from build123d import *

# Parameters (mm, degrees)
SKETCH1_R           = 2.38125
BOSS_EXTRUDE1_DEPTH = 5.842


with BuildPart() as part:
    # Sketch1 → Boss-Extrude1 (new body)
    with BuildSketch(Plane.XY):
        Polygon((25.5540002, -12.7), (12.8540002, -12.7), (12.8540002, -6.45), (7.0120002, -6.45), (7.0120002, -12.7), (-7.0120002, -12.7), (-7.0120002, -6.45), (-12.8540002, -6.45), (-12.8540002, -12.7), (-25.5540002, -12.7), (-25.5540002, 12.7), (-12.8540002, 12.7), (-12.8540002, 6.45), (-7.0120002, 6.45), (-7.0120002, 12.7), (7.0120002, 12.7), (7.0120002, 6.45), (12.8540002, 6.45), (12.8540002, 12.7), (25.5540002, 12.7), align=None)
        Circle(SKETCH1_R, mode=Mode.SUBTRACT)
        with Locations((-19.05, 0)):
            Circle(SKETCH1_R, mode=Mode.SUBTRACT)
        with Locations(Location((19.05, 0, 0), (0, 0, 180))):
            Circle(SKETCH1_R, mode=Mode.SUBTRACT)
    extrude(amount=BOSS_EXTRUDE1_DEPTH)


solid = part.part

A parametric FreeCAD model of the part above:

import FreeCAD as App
import Part
import Sketcher

V = App.Vector
Q = App.Units.Quantity

doc = App.newDocument("Part")
body = doc.addObject("PartDesign::Body", "Body")

# Sketch on XY plane
sketch1 = doc.addObject("Sketcher::SketchObject", "Sketch")
body.addObject(sketch1)
sketch1.AttachmentSupport = (doc.XY_Plane, [""])
sketch1.MapMode = "FlatFace"
sketch1.addGeometry(Part.LineSegment(V(12.9, -12.7, 0), V(25.6, -12.7, 0)), False)
sketch1.addGeometry(Part.LineSegment(V(25.6, -12.7, 0), V(25.6, 12.7, 0)), False)
sketch1.addGeometry(Part.LineSegment(V(25.6, 12.7, 0), V(12.9, 12.7, 0)), False)
sketch1.addGeometry(Part.LineSegment(V(12.9, 12.7, 0), V(12.9, 6.5, 0)), False)
sketch1.addGeometry(Part.LineSegment(V(12.9, 6.5, 0), V(7, 6.5, 0)), False)
sketch1.addGeometry(Part.LineSegment(V(7, 6.5, 0), V(7, 12.7, 0)), False)
sketch1.addGeometry(Part.LineSegment(V(7, 12.7, 0), V(-7, 12.7, 0)), False)
sketch1.addGeometry(Part.LineSegment(V(-7, 12.7, 0), V(-7, 6.5, 0)), False)
sketch1.addGeometry(Part.LineSegment(V(-7, 6.5, 0), V(-12.9, 6.5, 0)), False)
sketch1.addGeometry(Part.LineSegment(V(-12.9, 6.5, 0), V(-12.9, 12.7, 0)), False)
sketch1.addGeometry(Part.LineSegment(V(-12.9, 12.7, 0), V(-25.6, 12.7, 0)), False)
sketch1.addGeometry(Part.LineSegment(V(-25.6, 12.7, 0), V(-25.6, -12.7, 0)), False)
sketch1.addGeometry(Part.LineSegment(V(-25.6, -12.7, 0), V(-12.9, -12.7, 0)), False)
sketch1.addGeometry(Part.LineSegment(V(-12.9, -12.7, 0), V(-12.9, -6.5, 0)), False)
sketch1.addGeometry(Part.LineSegment(V(-12.9, -6.5, 0), V(-7, -6.5, 0)), False)
sketch1.addGeometry(Part.LineSegment(V(-7, -6.5, 0), V(-7, -12.7, 0)), False)
sketch1.addGeometry(Part.LineSegment(V(-7, -12.7, 0), V(7, -12.7, 0)), False)
sketch1.addGeometry(Part.LineSegment(V(7, -12.7, 0), V(7, -6.5, 0)), False)
sketch1.addGeometry(Part.LineSegment(V(7, -6.5, 0), V(12.9, -6.5, 0)), False)
sketch1.addGeometry(Part.LineSegment(V(12.9, -6.5, 0), V(12.9, -12.7, 0)), False)
sketch1.addGeometry(Part.Circle(V(19.1, 0, 0), V(0, 0, 1), 2.4), False)
sketch1.addGeometry(Part.Circle(V(0, 0, 0), V(0, 0, 1), 2.4), False)
sketch1.addGeometry(Part.Circle(V(-19.1, 0, 0), V(0, 0, 1), 2.4), False)
sketch1.addConstraint(Sketcher.Constraint("Coincident", 0, 2, 1, 1))
sketch1.addConstraint(Sketcher.Constraint("Coincident", 1, 2, 2, 1))
sketch1.addConstraint(Sketcher.Constraint("Coincident", 2, 2, 3, 1))
sketch1.addConstraint(Sketcher.Constraint("Coincident", 3, 2, 4, 1))
sketch1.addConstraint(Sketcher.Constraint("Coincident", 4, 2, 5, 1))
sketch1.addConstraint(Sketcher.Constraint("Coincident", 5, 2, 6, 1))
sketch1.addConstraint(Sketcher.Constraint("Coincident", 6, 2, 7, 1))
sketch1.addConstraint(Sketcher.Constraint("Coincident", 7, 2, 8, 1))
sketch1.addConstraint(Sketcher.Constraint("Coincident", 8, 2, 9, 1))
sketch1.addConstraint(Sketcher.Constraint("Coincident", 9, 2, 10, 1))
sketch1.addConstraint(Sketcher.Constraint("Coincident", 10, 2, 11, 1))
sketch1.addConstraint(Sketcher.Constraint("Coincident", 11, 2, 12, 1))
sketch1.addConstraint(Sketcher.Constraint("Coincident", 12, 2, 13, 1))
sketch1.addConstraint(Sketcher.Constraint("Coincident", 13, 2, 14, 1))
sketch1.addConstraint(Sketcher.Constraint("Coincident", 14, 2, 15, 1))
sketch1.addConstraint(Sketcher.Constraint("Coincident", 15, 2, 16, 1))
sketch1.addConstraint(Sketcher.Constraint("Coincident", 16, 2, 17, 1))
sketch1.addConstraint(Sketcher.Constraint("Coincident", 17, 2, 18, 1))
sketch1.addConstraint(Sketcher.Constraint("Coincident", 18, 2, 19, 1))
sketch1.addConstraint(Sketcher.Constraint("Coincident", 19, 2, 0, 1))
sketch1.addConstraint(Sketcher.Constraint("Horizontal", 0))
sketch1.addConstraint(Sketcher.Constraint("Vertical", 1))
sketch1.addConstraint(Sketcher.Constraint("Horizontal", 2))
sketch1.addConstraint(Sketcher.Constraint("Vertical", 3))
sketch1.addConstraint(Sketcher.Constraint("Horizontal", 4))
sketch1.addConstraint(Sketcher.Constraint("Vertical", 5))
sketch1.addConstraint(Sketcher.Constraint("Horizontal", 6))
sketch1.addConstraint(Sketcher.Constraint("Vertical", 7))
sketch1.addConstraint(Sketcher.Constraint("Horizontal", 8))
sketch1.addConstraint(Sketcher.Constraint("Vertical", 9))
sketch1.addConstraint(Sketcher.Constraint("Horizontal", 10))
sketch1.addConstraint(Sketcher.Constraint("Vertical", 11))
sketch1.addConstraint(Sketcher.Constraint("Horizontal", 12))
sketch1.addConstraint(Sketcher.Constraint("Vertical", 13))
sketch1.addConstraint(Sketcher.Constraint("Horizontal", 14))
sketch1.addConstraint(Sketcher.Constraint("Vertical", 15))
sketch1.addConstraint(Sketcher.Constraint("Horizontal", 16))
sketch1.addConstraint(Sketcher.Constraint("Vertical", 17))
sketch1.addConstraint(Sketcher.Constraint("Horizontal", 18))
sketch1.addConstraint(Sketcher.Constraint("Vertical", 19))
sketch1.addConstraint(Sketcher.Constraint("Coincident", 21, 3, -1, 1))
sketch1.addConstraint(Sketcher.Constraint("Equal", 20, 21))
sketch1.addConstraint(Sketcher.Constraint("Equal", 21, 22))
sketch1.addConstraint(Sketcher.Constraint("Symmetric", 20, 3, 22, 3, -1, 1))
sketch1.addConstraint(Sketcher.Constraint("Symmetric", 0, 2, 10, 2, -1, 1))
sketch1.addConstraint(Sketcher.Constraint("Symmetric", 2, 2, 12, 2, -1, 1))
sketch1.addConstraint(Sketcher.Constraint("Symmetric", 4, 2, 14, 2, -1, 1))
sketch1.addConstraint(Sketcher.Constraint("Symmetric", 6, 2, 16, 2, -1, 1))
sketch1.addConstraint(Sketcher.Constraint("Symmetric", 8, 2, 18, 2, -1, 1))
sketch1.addConstraint(Sketcher.Constraint("Symmetric", 4, 2, 7, 2, -2))
sketch1.addConstraint(Sketcher.Constraint("Symmetric", 2, 2, 9, 2, -2))
sketch1.addConstraint(Sketcher.Constraint("PointOnObject", 20, 3, -1))
sketch1.addConstraint(Sketcher.Constraint("Horizontal", 2, 2, 5, 2))
sketch1.addConstraint(Sketcher.Constraint("DistanceY", 1, 1, 1, 2, Q("1 in")))
sketch1.addConstraint(Sketcher.Constraint("Diameter", 20, Q("0.1875 in")))
sketch1.addConstraint(Sketcher.Constraint("DistanceX", 0, 1, 0, 2, Q("0.5 in")))
sketch1.addConstraint(Sketcher.Constraint("DistanceX", 4, 2, 4, 1, Q("0.23 in")))
sketch1.addConstraint(Sketcher.Constraint("DistanceX", 22, 3, 20, 3, Q("1.5 in")))
sketch1.addConstraint(Sketcher.Constraint("DistanceX", 6, 2, 6, 1, 14.024))
sketch1.addConstraint(Sketcher.Constraint("DistanceY", 3, 2, 3, 1, 6.25))
pad1 = doc.addObject("PartDesign::Pad", "Pad")
body.addObject(pad1)
pad1.Profile = sketch1
pad1.Length = Q("0.23 in")

doc.recompute()
